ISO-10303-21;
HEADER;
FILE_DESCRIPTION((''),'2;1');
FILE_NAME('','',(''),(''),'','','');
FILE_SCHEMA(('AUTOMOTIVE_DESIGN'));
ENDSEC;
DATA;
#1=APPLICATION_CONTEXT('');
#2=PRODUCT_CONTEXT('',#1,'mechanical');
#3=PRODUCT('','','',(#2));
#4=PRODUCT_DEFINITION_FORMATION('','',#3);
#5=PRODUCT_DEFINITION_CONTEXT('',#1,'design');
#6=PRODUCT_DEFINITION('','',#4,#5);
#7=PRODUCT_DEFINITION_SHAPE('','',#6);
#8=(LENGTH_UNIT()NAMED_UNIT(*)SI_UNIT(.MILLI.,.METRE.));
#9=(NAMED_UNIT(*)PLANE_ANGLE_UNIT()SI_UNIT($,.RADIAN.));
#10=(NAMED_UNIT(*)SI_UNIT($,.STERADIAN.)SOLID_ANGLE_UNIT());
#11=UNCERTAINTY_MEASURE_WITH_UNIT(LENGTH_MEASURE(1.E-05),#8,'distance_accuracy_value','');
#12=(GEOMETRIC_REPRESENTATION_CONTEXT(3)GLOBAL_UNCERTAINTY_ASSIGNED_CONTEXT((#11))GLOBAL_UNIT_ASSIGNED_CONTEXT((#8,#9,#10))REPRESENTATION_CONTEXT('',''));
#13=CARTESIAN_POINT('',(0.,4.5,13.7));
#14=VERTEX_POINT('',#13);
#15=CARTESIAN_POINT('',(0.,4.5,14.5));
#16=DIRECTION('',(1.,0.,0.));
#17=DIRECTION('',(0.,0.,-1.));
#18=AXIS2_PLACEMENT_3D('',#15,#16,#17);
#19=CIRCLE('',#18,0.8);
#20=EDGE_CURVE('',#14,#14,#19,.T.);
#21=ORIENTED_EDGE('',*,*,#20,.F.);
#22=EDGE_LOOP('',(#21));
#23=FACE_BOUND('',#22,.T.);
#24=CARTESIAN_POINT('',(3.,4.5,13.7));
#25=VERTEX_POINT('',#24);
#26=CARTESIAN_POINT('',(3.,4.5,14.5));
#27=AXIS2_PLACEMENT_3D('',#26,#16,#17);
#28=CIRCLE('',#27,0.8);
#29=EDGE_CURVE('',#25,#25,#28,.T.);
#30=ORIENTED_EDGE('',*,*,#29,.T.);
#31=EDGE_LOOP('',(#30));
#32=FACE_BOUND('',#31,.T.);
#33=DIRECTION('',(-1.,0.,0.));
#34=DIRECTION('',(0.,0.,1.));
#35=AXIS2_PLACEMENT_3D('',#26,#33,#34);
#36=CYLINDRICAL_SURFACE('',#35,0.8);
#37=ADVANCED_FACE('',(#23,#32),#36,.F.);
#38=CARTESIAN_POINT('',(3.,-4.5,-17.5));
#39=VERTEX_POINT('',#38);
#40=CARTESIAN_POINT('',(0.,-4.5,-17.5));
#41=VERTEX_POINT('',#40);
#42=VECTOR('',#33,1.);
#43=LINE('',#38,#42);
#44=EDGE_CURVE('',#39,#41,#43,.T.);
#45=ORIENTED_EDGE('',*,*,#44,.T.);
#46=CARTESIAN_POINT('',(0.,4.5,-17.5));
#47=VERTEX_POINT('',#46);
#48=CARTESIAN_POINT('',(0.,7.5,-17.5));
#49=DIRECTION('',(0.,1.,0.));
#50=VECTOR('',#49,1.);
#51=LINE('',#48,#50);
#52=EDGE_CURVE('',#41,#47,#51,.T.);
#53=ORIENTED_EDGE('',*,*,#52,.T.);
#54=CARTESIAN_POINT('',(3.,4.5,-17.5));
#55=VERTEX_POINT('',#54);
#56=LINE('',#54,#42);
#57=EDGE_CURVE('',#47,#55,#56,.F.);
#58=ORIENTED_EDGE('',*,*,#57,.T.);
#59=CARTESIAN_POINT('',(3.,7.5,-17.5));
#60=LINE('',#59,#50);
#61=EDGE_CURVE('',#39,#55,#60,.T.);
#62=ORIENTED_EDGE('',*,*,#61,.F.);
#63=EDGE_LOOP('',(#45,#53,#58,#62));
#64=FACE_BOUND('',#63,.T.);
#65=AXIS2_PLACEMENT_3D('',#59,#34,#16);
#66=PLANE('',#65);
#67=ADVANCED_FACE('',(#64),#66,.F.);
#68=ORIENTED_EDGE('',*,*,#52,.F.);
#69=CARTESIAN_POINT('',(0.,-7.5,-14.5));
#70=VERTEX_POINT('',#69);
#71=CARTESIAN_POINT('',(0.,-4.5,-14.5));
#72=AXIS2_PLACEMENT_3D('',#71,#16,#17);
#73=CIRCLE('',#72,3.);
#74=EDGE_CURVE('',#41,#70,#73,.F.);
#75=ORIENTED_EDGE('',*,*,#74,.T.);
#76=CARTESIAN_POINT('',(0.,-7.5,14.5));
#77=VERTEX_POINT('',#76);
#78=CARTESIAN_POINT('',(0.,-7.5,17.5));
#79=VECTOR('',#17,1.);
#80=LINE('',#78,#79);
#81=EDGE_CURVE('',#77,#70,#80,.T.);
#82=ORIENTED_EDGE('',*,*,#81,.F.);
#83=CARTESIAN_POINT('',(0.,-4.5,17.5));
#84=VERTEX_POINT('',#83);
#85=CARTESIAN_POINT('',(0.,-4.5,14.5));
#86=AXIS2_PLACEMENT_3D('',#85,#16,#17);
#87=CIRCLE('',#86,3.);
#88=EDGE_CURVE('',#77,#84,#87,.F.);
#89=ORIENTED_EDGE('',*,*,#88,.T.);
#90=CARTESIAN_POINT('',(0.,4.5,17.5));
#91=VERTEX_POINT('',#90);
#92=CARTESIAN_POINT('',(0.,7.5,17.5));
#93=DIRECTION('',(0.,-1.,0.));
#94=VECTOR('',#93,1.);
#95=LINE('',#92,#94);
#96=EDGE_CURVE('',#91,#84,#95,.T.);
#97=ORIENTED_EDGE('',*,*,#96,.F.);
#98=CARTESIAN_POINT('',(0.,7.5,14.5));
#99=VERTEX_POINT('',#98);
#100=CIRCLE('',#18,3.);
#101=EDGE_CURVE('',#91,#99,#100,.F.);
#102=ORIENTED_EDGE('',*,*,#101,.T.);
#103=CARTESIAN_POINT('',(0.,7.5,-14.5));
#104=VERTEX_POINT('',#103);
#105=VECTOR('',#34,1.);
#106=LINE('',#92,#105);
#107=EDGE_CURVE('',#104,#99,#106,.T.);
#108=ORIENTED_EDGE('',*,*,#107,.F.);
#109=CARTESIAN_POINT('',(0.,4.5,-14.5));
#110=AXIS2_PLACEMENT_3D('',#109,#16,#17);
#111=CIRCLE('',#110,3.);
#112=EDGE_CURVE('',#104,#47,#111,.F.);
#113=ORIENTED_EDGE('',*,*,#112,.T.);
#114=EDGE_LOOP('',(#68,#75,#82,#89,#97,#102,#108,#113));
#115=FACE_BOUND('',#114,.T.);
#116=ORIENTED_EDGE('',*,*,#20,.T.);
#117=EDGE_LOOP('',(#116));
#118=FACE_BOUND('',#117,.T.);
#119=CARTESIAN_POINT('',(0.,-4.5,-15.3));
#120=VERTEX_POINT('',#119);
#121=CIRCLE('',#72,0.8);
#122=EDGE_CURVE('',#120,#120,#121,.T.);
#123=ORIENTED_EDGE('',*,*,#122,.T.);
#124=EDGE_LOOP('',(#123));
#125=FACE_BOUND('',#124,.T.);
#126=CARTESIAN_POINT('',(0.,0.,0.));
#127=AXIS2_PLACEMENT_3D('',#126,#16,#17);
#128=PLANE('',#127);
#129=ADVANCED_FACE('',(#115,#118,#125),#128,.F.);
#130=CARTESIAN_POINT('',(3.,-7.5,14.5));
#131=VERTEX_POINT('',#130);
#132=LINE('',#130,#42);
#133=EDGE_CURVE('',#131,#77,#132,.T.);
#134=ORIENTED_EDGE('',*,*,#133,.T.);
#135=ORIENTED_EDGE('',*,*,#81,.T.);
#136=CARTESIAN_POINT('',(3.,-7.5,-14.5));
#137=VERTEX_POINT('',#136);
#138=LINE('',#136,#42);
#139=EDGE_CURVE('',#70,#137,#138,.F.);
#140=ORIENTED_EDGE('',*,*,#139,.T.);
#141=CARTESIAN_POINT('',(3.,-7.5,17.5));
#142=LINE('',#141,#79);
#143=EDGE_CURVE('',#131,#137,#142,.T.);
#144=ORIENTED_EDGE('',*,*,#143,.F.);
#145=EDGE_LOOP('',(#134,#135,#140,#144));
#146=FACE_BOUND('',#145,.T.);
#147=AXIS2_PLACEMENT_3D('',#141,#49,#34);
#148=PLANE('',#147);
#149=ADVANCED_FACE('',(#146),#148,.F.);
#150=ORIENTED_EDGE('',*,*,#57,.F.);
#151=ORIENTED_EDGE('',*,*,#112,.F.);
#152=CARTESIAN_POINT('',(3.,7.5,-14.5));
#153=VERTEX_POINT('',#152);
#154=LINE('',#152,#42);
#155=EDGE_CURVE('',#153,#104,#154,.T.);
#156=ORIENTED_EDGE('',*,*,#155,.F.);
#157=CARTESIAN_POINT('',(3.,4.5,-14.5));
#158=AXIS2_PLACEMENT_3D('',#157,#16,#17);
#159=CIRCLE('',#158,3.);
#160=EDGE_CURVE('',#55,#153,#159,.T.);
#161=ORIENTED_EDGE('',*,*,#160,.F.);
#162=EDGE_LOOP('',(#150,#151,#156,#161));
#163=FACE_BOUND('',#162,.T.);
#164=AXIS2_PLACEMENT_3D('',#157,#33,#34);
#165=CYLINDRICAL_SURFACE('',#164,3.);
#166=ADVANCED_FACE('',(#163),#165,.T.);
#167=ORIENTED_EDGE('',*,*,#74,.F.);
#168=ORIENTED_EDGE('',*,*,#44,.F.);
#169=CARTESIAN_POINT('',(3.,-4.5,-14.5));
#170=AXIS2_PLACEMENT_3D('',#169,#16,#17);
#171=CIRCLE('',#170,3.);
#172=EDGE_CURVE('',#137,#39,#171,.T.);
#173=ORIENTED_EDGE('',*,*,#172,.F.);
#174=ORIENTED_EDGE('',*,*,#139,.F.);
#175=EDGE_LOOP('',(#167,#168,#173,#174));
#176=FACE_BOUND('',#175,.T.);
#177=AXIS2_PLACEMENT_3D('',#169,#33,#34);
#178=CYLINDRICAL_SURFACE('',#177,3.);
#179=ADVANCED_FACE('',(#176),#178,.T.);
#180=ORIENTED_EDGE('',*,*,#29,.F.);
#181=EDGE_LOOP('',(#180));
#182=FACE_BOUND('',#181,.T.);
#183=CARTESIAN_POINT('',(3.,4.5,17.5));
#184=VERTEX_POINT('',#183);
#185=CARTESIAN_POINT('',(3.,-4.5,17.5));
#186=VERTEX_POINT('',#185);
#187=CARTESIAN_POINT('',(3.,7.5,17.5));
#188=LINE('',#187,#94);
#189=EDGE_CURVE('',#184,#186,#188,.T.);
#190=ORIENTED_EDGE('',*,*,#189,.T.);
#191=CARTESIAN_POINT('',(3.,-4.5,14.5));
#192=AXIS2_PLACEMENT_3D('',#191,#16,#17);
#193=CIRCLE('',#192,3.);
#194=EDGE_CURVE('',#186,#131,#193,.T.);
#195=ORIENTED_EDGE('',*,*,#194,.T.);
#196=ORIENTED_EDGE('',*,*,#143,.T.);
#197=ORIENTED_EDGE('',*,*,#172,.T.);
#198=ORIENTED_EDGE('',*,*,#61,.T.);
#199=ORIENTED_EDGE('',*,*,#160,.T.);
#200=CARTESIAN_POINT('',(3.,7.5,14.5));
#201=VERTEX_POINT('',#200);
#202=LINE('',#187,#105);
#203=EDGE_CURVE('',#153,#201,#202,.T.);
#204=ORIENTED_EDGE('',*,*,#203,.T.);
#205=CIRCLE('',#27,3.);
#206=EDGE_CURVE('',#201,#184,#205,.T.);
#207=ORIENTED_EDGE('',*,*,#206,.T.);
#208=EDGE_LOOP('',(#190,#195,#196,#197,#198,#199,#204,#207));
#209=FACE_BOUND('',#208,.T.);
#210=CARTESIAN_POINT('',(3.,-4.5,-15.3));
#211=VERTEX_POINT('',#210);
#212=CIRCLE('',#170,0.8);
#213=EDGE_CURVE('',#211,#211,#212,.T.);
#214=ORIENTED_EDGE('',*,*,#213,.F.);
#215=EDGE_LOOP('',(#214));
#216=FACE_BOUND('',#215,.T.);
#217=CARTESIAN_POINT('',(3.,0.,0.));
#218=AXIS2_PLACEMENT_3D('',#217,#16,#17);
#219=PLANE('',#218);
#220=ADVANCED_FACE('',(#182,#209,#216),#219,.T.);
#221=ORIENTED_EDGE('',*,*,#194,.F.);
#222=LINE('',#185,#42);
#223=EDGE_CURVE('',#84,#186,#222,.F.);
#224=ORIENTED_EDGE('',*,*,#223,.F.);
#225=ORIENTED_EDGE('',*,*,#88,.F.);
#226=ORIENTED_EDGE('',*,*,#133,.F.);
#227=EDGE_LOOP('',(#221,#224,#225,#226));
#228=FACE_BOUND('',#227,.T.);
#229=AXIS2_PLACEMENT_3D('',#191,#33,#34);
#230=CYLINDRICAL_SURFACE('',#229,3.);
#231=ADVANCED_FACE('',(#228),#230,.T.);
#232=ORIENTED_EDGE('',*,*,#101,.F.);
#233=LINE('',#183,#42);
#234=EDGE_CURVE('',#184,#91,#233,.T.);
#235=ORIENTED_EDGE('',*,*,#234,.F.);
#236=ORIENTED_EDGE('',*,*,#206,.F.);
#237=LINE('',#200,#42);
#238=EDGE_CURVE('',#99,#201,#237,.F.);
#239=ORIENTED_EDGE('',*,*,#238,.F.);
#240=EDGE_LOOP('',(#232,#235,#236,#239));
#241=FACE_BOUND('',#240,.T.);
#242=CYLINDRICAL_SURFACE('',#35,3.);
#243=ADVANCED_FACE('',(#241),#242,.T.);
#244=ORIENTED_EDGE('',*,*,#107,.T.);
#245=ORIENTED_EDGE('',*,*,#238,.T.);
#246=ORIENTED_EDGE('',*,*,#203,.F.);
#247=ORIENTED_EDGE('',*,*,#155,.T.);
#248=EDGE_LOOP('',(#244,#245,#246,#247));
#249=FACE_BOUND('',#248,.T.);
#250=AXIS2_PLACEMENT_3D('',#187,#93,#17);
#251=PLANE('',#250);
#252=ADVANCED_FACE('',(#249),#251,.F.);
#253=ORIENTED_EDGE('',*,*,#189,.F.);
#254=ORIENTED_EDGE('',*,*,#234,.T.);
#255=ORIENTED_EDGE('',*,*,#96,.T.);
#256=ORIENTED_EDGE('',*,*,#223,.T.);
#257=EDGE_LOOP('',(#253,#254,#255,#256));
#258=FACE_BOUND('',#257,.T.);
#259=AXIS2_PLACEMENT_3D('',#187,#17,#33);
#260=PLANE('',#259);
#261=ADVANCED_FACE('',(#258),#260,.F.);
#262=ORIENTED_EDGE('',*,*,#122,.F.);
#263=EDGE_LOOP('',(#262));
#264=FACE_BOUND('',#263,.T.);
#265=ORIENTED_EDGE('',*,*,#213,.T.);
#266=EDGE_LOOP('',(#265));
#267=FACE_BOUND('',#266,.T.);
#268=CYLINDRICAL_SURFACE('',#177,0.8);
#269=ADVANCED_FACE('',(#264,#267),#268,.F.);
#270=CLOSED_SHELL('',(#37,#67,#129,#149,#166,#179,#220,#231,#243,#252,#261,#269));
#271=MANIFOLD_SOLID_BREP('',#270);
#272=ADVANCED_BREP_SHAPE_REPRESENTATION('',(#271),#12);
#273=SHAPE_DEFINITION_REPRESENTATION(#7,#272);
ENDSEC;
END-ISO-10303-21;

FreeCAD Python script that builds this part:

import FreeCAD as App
import Part
import Sketcher
Q = App.Units.Quantity


def edges_at(feature, points):
    """Names of the edges that pass closest to the given points."""
    edges = feature.Shape.Edges
    near = lambda p: min(range(len(edges)), key=lambda i: edges[i].distToShape(Part.Vertex(*p))[0])
    return sorted({f"Edge{near(p) + 1}" for p in points})

doc = App.newDocument("Part")
params = doc.addObject("Spreadsheet::Sheet", "Params")
for row, (alias, value) in enumerate([
    ("sketch1_diameter", "1.6 mm"),
    ("sketch1_width", "15 mm"),
    ("sketch1_height", "35 mm"),
    ("pad1_length", "3 mm"),
    ("fillet_radius", "3 mm"),
], start=1):
    params.set(f"A{row}", alias)
    params.set(f"B{row}", "=" + value)
    params.setAlias(f"B{row}", alias)

body = doc.addObject("PartDesign::Body", "Body")

# Sketch on YZ plane
sketch1 = body.newObject("Sketcher::SketchObject", "Sketch")
sketch1.AttachmentSupport = (doc.getObject("YZ_Plane"), [""])
sketch1.MapMode = "FlatFace"
sketch1.addGeometry(Part.LineSegment(App.Vector(7.5, 17.5, 0), App.Vector(-7.5, 17.5, 0)), False)
sketch1.addGeometry(Part.LineSegment(App.Vector(-7.5, 17.5, 0), App.Vector(-7.5, -17.5, 0)), False)
sketch1.addGeometry(Part.LineSegment(App.Vector(-7.5, -17.5, 0), App.Vector(7.5, -17.5, 0)), False)
sketch1.addGeometry(Part.LineSegment(App.Vector(7.5, -17.5, 0), App.Vector(7.5, 17.5, 0)), False)
sketch1.addGeometry(Part.Circle(App.Vector(-4.5, -14.5, 0), App.Vector(0, 0, 1), 0.8), False)
sketch1.addGeometry(Part.Circle(App.Vector(4.5, 14.5, 0), App.Vector(0, 0, 1), 0.8), False)
sketch1.addConstraint(Sketcher.Constraint("Coincident", 0, 2, 1, 1))
sketch1.addConstraint(Sketcher.Constraint("Coincident", 1, 2, 2, 1))
sketch1.addConstraint(Sketcher.Constraint("Coincident", 2, 2, 3, 1))
sketch1.addConstraint(Sketcher.Constraint("Coincident", 3, 2, 0, 1))
sketch1.addConstraint(Sketcher.Constraint("Horizontal", 0))
sketch1.addConstraint(Sketcher.Constraint("Vertical", 1))
sketch1.addConstraint(Sketcher.Constraint("Horizontal", 2))
sketch1.addConstraint(Sketcher.Constraint("Vertical", 3))
sketch1.addConstraint(Sketcher.Constraint("Equal", 4, 5))
sketch1.addConstraint(Sketcher.Constraint("Symmetric", 4, 3, 5, 3, -1, 1))
sketch1.addConstraint(Sketcher.Constraint("Symmetric", 0, 2, 2, 2, -1, 1))
sketch1.addConstraint(Sketcher.Constraint("Diameter", 4, Q("1.6 mm")))
sketch1.addConstraint(Sketcher.Constraint("DistanceX", 0, 2, 0, 1, Q("15 mm")))
sketch1.addConstraint(Sketcher.Constraint("DistanceY", 1, 2, 1, 1, Q("35 mm")))
sketch1.addConstraint(Sketcher.Constraint("DistanceX", 4, 3, 5, 3, Q("9 mm")))
sketch1.addConstraint(Sketcher.Constraint("DistanceY", 4, 3, 5, 3, Q("29 mm")))
sketch1.setExpression("Constraints[11]", "Params.sketch1_diameter")
sketch1.setExpression("Constraints[12]", "Params.sketch1_width")
sketch1.setExpression("Constraints[13]", "Params.sketch1_height")
pad1 = body.newObject("PartDesign::Pad", "Pad")
pad1.Profile = sketch1
pad1.setExpression("Length", "Params.pad1_length")
doc.recompute()

fillet = body.newObject("PartDesign::Fillet", "Fillet")
fillet.Base = (pad1, edges_at(pad1, [
    (1.5, -7.5, -17.5),
    (1.5, -7.5, 17.5),
    (1.5, 7.5, 17.5),
    (1.5, 7.5, -17.5),
]))
fillet.setExpression("Radius", "Params.fillet_radius")

doc.recompute()
